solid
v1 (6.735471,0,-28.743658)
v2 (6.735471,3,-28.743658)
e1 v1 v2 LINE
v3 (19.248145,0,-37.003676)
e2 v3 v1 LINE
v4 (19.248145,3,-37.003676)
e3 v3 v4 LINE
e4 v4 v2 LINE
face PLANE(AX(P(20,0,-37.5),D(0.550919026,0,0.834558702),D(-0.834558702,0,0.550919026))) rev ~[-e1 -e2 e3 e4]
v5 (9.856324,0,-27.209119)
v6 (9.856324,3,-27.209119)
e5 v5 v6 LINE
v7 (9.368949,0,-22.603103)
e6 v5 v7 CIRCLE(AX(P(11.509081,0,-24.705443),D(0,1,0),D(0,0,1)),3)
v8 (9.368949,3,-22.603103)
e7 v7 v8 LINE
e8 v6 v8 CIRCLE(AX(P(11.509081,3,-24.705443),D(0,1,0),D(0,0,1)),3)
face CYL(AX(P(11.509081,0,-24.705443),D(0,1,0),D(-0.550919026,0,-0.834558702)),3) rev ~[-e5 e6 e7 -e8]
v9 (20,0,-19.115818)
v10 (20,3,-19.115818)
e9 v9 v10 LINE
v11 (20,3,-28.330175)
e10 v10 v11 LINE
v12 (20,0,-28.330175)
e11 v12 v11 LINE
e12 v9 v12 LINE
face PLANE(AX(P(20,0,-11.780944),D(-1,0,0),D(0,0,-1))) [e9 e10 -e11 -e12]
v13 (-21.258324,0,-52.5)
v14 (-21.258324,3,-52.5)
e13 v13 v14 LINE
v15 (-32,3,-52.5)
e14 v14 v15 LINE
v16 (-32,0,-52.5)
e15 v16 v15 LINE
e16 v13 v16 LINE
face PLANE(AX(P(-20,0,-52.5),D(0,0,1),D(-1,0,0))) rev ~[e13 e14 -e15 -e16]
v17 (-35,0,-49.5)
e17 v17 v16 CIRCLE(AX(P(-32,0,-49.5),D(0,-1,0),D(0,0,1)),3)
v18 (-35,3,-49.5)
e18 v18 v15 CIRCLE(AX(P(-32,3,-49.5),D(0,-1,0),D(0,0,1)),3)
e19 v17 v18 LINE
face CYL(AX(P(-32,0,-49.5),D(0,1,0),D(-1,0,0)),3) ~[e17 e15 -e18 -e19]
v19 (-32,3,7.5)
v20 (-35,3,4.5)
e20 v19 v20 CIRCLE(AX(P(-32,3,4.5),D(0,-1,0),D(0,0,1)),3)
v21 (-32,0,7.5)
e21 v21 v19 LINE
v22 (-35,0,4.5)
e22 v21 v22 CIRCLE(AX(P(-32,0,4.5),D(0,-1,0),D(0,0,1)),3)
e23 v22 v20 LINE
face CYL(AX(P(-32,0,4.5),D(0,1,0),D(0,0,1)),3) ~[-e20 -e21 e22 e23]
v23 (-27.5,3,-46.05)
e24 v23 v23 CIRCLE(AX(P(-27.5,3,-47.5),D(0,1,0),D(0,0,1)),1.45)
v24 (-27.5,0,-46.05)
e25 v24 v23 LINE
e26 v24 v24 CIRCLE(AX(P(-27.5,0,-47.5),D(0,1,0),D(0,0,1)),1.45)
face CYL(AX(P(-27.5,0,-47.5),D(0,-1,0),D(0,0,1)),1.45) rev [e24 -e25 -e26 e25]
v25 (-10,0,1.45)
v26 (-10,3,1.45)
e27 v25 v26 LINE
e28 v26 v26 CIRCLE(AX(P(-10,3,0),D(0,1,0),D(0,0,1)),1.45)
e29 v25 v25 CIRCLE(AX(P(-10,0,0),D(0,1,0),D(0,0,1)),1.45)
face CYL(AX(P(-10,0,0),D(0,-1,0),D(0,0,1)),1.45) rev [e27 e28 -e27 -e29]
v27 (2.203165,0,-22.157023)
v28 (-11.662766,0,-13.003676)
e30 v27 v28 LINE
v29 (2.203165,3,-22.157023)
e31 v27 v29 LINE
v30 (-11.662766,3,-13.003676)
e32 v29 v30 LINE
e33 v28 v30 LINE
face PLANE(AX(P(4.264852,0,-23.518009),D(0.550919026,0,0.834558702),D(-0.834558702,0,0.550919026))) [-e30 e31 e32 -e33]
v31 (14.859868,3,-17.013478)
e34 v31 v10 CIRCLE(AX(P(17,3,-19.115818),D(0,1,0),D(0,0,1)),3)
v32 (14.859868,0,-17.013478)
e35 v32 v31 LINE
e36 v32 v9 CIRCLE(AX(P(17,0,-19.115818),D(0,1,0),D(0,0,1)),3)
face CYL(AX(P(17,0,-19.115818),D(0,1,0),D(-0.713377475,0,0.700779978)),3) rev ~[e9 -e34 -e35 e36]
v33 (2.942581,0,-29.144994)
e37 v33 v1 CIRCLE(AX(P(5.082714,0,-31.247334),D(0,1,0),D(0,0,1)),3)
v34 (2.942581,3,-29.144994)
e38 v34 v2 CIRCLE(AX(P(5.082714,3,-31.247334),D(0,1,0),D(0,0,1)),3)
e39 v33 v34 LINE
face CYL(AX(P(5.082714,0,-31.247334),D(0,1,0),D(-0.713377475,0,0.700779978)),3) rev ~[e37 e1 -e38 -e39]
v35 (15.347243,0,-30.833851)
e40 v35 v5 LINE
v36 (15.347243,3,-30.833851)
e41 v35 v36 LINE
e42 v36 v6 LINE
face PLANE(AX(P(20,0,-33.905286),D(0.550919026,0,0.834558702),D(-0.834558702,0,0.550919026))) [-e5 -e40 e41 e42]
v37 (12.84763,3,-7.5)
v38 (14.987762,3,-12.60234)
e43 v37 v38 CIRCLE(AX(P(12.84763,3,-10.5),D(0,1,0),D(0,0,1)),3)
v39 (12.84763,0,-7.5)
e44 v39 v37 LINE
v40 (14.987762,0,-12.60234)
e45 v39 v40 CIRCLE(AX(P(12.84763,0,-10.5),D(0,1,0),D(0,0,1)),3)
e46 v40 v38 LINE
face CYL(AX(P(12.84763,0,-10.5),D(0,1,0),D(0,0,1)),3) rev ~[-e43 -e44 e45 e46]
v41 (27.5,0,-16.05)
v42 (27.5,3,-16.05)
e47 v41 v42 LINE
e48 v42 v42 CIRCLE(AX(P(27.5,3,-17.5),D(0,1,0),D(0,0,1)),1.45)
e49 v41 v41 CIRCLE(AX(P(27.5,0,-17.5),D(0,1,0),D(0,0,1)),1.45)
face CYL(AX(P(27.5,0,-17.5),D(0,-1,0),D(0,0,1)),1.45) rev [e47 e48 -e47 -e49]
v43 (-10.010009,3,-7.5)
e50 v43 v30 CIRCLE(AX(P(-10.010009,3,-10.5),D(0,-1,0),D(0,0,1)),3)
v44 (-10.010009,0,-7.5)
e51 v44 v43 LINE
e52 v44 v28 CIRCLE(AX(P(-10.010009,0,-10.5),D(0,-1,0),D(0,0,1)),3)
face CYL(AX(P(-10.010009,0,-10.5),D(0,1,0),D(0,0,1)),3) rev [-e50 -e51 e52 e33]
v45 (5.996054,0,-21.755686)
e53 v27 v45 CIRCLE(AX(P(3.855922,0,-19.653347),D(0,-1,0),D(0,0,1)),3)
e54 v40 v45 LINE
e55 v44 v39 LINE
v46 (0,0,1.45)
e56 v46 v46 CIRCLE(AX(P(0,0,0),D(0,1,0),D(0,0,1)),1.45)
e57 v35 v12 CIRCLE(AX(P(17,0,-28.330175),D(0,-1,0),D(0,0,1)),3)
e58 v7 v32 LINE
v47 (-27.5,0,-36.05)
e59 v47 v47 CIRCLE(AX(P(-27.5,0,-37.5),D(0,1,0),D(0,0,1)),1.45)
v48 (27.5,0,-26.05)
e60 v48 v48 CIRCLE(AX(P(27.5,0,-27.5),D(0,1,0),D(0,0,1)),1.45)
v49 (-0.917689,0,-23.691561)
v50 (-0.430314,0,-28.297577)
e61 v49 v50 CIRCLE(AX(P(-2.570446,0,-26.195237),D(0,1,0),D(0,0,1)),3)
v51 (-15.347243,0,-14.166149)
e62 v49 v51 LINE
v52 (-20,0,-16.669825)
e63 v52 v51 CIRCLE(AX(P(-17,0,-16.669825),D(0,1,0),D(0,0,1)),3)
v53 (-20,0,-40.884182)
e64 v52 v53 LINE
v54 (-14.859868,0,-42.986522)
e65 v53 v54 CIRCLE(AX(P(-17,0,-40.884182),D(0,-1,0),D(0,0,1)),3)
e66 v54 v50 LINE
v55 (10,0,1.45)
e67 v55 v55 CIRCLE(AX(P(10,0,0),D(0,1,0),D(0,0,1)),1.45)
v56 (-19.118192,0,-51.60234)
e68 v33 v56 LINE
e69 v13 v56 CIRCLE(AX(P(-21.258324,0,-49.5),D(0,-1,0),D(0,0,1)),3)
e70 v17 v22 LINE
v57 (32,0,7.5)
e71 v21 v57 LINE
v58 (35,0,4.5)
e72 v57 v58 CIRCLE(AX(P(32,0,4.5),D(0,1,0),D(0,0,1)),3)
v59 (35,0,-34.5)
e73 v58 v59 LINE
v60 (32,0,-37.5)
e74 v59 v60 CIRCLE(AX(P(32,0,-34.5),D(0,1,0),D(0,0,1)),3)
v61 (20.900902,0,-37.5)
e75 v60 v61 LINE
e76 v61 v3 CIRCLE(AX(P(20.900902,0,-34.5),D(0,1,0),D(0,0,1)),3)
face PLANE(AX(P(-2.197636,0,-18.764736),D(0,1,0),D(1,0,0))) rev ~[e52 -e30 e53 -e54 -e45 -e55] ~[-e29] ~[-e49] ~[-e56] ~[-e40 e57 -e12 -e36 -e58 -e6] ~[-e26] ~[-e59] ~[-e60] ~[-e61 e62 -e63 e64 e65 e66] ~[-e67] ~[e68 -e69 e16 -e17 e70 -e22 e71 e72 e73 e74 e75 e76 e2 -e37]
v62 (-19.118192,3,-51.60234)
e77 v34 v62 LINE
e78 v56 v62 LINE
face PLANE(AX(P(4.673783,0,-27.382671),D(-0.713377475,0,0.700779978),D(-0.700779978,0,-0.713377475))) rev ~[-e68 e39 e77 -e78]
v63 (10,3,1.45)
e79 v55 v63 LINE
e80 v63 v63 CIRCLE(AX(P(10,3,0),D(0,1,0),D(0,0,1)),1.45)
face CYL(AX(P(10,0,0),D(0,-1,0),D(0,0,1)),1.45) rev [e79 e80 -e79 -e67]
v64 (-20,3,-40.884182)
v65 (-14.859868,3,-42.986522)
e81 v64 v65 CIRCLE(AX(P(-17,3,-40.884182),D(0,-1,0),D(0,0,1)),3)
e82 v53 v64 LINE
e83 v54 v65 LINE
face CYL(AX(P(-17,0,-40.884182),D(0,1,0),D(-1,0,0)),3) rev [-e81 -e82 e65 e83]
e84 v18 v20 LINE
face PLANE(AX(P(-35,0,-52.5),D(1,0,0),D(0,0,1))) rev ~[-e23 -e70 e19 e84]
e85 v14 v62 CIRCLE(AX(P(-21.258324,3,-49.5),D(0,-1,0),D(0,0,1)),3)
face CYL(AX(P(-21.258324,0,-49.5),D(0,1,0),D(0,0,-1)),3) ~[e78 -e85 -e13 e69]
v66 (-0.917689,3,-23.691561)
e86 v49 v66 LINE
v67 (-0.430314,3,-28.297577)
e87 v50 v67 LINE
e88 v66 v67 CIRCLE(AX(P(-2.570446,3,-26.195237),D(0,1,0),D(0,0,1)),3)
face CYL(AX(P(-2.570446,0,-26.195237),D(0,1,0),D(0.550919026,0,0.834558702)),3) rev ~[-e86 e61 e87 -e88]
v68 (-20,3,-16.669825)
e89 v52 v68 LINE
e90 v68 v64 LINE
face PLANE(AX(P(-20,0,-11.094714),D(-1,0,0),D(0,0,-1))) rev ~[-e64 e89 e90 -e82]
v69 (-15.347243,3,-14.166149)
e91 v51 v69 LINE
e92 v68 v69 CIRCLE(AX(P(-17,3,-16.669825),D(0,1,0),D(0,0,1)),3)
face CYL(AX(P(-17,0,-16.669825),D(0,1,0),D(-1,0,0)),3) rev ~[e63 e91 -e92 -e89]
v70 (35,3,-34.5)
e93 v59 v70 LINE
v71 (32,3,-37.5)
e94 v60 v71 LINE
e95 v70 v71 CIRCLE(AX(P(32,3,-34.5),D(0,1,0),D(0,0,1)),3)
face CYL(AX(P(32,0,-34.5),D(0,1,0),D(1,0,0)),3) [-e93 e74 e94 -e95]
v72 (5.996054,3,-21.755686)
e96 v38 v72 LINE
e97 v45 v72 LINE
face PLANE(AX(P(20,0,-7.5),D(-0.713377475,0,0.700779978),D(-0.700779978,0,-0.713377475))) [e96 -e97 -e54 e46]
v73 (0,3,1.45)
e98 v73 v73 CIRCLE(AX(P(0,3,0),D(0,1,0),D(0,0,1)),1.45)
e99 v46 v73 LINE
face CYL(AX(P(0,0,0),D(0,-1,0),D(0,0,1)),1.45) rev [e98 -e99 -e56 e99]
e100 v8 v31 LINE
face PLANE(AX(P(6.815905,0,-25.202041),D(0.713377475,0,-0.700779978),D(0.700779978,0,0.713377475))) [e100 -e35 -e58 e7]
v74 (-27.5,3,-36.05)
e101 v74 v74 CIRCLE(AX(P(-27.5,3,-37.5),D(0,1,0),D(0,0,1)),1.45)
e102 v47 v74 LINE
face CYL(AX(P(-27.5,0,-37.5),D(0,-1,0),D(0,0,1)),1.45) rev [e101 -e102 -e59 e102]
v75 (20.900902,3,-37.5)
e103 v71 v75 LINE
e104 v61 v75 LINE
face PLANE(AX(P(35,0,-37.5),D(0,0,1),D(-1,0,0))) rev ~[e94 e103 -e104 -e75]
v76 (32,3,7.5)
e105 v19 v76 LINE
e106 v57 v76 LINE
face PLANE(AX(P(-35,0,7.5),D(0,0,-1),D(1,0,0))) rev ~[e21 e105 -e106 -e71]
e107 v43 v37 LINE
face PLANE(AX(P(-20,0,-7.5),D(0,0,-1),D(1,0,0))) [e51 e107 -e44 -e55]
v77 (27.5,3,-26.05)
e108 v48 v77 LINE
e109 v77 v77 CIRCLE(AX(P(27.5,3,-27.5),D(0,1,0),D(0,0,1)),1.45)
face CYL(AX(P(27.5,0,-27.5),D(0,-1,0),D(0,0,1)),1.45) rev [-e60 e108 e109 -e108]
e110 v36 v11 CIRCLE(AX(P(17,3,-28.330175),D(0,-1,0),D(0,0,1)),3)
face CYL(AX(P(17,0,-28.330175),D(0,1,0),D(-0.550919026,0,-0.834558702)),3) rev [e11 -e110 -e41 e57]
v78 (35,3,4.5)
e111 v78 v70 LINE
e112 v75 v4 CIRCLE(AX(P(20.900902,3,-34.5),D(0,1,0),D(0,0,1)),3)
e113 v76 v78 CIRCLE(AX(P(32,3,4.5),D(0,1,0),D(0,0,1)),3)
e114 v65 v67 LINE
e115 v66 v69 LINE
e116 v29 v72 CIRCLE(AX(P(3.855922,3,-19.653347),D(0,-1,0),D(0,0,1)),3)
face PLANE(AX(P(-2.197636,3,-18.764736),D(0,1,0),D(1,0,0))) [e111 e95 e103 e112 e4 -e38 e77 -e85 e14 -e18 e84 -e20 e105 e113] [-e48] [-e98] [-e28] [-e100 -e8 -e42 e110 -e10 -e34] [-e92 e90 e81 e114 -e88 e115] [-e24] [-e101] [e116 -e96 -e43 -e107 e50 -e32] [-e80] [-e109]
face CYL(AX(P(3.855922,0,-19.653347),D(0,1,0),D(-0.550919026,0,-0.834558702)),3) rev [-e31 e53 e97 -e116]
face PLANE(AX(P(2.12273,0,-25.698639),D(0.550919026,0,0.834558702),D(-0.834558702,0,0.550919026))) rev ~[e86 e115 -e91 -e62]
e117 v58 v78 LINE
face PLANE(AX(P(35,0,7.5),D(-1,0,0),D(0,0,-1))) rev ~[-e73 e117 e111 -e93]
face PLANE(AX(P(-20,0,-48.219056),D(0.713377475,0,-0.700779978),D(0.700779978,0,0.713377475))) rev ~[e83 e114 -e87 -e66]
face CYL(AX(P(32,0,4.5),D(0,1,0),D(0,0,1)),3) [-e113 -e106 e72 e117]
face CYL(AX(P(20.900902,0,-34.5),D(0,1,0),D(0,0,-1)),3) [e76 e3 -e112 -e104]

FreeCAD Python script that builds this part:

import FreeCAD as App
import Part
import Sketcher

V = App.Vector
Q = App.Units.Quantity


def edges_at(feature, points):
    """Names of the edges that pass closest to the given points."""
    edges = feature.Shape.Edges
    near = lambda p: min(range(len(edges)), key=lambda i: edges[i].distToShape(Part.Vertex(*p))[0])
    return sorted({f"Edge{near(p) + 1}" for p in points})


def add_polygon(sketch, points):
    """Adds a closed chain of lines whose ends are joined by coincident constraints."""
    first, n = sketch.GeometryCount, len(points)
    for a, b in zip(points, points[1:] + points[:1]):
        sketch.addGeometry(Part.LineSegment(App.Vector(*a, 0), App.Vector(*b, 0)), False)
    for i in range(n):
        sketch.addConstraint(Sketcher.Constraint("Coincident", first + i, 2, first + (i + 1) % n, 1))

doc = App.newDocument("Part")
body = doc.addObject("PartDesign::Body", "Body")

# Sketch on XZ plane
sketch1 = body.newObject("Sketcher::SketchObject", "Sketch")
sketch1.AttachmentSupport = (doc.getObject("XZ_Plane"), [""])
sketch1.MapMode = "FlatFace"
add_polygon(sketch1, [(-35, 7.5), (35, 7.5), (35, -37.5), (20, -37.5), (4.7, -27.4), (-20, -52.5), (-35, -52.5)])  # lines 0-6
sketch1.addGeometry(Part.Circle(V(-10, 0, 0), V(0, 0, 1), 1.4), False)  # 7
sketch1.addGeometry(Part.Circle(V(0, 0, 0), V(0, 0, 1), 1.4), False)  # 8
add_polygon(sketch1, [(20, -7.5), (-20, -7.5), (4.3, -23.5)])  # lines 9-11
sketch1.addGeometry(Part.Circle(V(10, 0, 0), V(0, 0, 1), 1.4), False)  # 12
add_polygon(sketch1, [(6.8, -25.2), (20, -33.9), (20, -11.8)])  # lines 13-15
sketch1.addGeometry(Part.Circle(V(27.5, -17.5, 0), V(0, 0, 1), 1.4), False)  # 16
add_polygon(sketch1, [(-20, -11.1), (-20, -48.2), (2.1, -25.7)])  # lines 17-19
sketch1.addGeometry(Part.Circle(V(-27.5, -37.5, 0), V(0, 0, 1), 1.4), False)  # 20
sketch1.addGeometry(Part.Circle(V(-27.5, -47.5, 0), V(0, 0, 1), 1.4), False)  # 21
sketch1.addGeometry(Part.Circle(V(27.5, -27.5, 0), V(0, 0, 1), 1.4), False)  # 22
sketch1.addConstraint([
    Sketcher.Constraint("Horizontal", 0),
    Sketcher.Constraint("Vertical", 1),
    Sketcher.Constraint("Horizontal", 2),
    Sketcher.Constraint("Horizontal", 5),
    Sketcher.Constraint("Vertical", 6),
    Sketcher.Constraint("Horizontal", 9),
    Sketcher.Constraint("Vertical", 14),
    Sketcher.Constraint("Vertical", 17),
    Sketcher.Constraint("Coincident", 8, 3, -1, 1),
    Sketcher.Constraint("Equal", 7, 8),
    Sketcher.Constraint("Equal", 8, 12),
    Sketcher.Constraint("Equal", 12, 16),
    Sketcher.Constraint("Equal", 16, 20),
    Sketcher.Constraint("Equal", 20, 21),
    Sketcher.Constraint("Equal", 21, 22),
    Sketcher.Constraint("Symmetric", 7, 3, 12, 3, -1, 1),
    Sketcher.Constraint("PointOnObject", 7, 3, -1),
    Sketcher.Constraint("Parallel", 3, 10),
    Sketcher.Constraint("Parallel", 4, 11),
    Sketcher.Constraint("Parallel", 10, 13),
    Sketcher.Constraint("Parallel", 11, 15),
    Sketcher.Constraint("Parallel", 15, 18),
    Sketcher.Constraint("Parallel", 13, 19),
    Sketcher.Constraint("Horizontal", 20, 3, 1, 2),
    Sketcher.Constraint("Vertical", 20, 3, 21, 3),
    Sketcher.Constraint("Vertical", 16, 3, 22, 3),
    Sketcher.Constraint("Vertical", 4, 2, 9, 2),
    Sketcher.Constraint("Vertical", 2, 2, 11, 2),
    Sketcher.Constraint("Vertical", 11, 2, 13, 2),
    Sketcher.Constraint("Vertical", 9, 2, 17, 2),
    Sketcher.Constraint("Equal", 2, 5),
    Sketcher.Constraint("Diameter", 7, Q("2.9 mm")),
    Sketcher.Constraint("DistanceX", 0, 1, 0, 2, Q("70 mm")),
    Sketcher.Constraint("DistanceX", 2, 2, 2, 1, Q("15 mm")),
    Sketcher.Constraint("DistanceY", 1, 2, 1, 1, Q("45 mm")),
    Sketcher.Constraint("DistanceY", 6, 1, 6, 2, Q("60 mm")),
    Sketcher.Constraint("DistanceX", 7, 3, -1, 1, Q("10 mm")),
    Sketcher.Constraint("DistanceX", -1, 1, 0, 2, Q("35 mm")),
    Sketcher.Constraint("DistanceX", 20, 3, 16, 3, Q("55 mm")),
    Sketcher.Constraint("DistanceY", 20, 3, 16, 3, Q("20 mm")),
    Sketcher.Constraint("DistanceY", 21, 3, 20, 3, Q("10 mm")),
    Sketcher.Constraint("DistanceY", 22, 3, 16, 3, Q("10 mm")),
    Sketcher.Constraint("DistanceY", 9, 2, 6, 2, Q("15 mm")),
    Sketcher.Constraint("DistanceX", -1, 1, 16, 3, Q("27.5 mm")),
    Sketcher.Constraint("DistanceY", 16, 3, -1, 1, Q("17.5 mm")),
    Sketcher.Constraint("DistanceY", 14, 1, 14, 2, Q("22.124342 mm")),
    Sketcher.Constraint("DistanceY", 17, 2, 17, 1, Q("37.124342 mm")),
    Sketcher.Constraint("Distance", 4, Q("35.209029 mm")),
    Sketcher.Constraint("Distance", 10, Q("29.075069 mm")),
    Sketcher.Constraint("DistanceY", 15, 2, -1, 1, Q("25.202041 mm")),
    Sketcher.Constraint("DistanceY", 18, 2, -1, 1, Q("25.698639 mm")),
])
pad1 = body.newObject("PartDesign::Pad", "Pad")
pad1.Profile = sketch1
pad1.Length = 3
pad1.Reversed = True
doc.recompute()

fillet = body.newObject("PartDesign::Fillet", "Fillet")
fillet.Base = (pad1, edges_at(pad1, [
    (-20, 1.5, -7.5),
    (20, 1.5, -7.5),
    (4.265, 1.5, -23.518),
    (2.123, 1.5, -25.699),
    (-20, 1.5, -48.219),
    (-20, 1.5, -11.095),
    (20, 1.5, -37.5),
    (35, 1.5, -37.5),
    (35, 1.5, 7.5),
    (-35, 1.5, 7.5),
    (-35, 1.5, -52.5),
    (-20, 1.5, -52.5),
    (4.674, 1.5, -27.383),
    (20, 1.5, -33.905),
    (6.816, 1.5, -25.202),
    (20, 1.5, -11.781),
]))
fillet.Radius = 3

doc.recompute()
